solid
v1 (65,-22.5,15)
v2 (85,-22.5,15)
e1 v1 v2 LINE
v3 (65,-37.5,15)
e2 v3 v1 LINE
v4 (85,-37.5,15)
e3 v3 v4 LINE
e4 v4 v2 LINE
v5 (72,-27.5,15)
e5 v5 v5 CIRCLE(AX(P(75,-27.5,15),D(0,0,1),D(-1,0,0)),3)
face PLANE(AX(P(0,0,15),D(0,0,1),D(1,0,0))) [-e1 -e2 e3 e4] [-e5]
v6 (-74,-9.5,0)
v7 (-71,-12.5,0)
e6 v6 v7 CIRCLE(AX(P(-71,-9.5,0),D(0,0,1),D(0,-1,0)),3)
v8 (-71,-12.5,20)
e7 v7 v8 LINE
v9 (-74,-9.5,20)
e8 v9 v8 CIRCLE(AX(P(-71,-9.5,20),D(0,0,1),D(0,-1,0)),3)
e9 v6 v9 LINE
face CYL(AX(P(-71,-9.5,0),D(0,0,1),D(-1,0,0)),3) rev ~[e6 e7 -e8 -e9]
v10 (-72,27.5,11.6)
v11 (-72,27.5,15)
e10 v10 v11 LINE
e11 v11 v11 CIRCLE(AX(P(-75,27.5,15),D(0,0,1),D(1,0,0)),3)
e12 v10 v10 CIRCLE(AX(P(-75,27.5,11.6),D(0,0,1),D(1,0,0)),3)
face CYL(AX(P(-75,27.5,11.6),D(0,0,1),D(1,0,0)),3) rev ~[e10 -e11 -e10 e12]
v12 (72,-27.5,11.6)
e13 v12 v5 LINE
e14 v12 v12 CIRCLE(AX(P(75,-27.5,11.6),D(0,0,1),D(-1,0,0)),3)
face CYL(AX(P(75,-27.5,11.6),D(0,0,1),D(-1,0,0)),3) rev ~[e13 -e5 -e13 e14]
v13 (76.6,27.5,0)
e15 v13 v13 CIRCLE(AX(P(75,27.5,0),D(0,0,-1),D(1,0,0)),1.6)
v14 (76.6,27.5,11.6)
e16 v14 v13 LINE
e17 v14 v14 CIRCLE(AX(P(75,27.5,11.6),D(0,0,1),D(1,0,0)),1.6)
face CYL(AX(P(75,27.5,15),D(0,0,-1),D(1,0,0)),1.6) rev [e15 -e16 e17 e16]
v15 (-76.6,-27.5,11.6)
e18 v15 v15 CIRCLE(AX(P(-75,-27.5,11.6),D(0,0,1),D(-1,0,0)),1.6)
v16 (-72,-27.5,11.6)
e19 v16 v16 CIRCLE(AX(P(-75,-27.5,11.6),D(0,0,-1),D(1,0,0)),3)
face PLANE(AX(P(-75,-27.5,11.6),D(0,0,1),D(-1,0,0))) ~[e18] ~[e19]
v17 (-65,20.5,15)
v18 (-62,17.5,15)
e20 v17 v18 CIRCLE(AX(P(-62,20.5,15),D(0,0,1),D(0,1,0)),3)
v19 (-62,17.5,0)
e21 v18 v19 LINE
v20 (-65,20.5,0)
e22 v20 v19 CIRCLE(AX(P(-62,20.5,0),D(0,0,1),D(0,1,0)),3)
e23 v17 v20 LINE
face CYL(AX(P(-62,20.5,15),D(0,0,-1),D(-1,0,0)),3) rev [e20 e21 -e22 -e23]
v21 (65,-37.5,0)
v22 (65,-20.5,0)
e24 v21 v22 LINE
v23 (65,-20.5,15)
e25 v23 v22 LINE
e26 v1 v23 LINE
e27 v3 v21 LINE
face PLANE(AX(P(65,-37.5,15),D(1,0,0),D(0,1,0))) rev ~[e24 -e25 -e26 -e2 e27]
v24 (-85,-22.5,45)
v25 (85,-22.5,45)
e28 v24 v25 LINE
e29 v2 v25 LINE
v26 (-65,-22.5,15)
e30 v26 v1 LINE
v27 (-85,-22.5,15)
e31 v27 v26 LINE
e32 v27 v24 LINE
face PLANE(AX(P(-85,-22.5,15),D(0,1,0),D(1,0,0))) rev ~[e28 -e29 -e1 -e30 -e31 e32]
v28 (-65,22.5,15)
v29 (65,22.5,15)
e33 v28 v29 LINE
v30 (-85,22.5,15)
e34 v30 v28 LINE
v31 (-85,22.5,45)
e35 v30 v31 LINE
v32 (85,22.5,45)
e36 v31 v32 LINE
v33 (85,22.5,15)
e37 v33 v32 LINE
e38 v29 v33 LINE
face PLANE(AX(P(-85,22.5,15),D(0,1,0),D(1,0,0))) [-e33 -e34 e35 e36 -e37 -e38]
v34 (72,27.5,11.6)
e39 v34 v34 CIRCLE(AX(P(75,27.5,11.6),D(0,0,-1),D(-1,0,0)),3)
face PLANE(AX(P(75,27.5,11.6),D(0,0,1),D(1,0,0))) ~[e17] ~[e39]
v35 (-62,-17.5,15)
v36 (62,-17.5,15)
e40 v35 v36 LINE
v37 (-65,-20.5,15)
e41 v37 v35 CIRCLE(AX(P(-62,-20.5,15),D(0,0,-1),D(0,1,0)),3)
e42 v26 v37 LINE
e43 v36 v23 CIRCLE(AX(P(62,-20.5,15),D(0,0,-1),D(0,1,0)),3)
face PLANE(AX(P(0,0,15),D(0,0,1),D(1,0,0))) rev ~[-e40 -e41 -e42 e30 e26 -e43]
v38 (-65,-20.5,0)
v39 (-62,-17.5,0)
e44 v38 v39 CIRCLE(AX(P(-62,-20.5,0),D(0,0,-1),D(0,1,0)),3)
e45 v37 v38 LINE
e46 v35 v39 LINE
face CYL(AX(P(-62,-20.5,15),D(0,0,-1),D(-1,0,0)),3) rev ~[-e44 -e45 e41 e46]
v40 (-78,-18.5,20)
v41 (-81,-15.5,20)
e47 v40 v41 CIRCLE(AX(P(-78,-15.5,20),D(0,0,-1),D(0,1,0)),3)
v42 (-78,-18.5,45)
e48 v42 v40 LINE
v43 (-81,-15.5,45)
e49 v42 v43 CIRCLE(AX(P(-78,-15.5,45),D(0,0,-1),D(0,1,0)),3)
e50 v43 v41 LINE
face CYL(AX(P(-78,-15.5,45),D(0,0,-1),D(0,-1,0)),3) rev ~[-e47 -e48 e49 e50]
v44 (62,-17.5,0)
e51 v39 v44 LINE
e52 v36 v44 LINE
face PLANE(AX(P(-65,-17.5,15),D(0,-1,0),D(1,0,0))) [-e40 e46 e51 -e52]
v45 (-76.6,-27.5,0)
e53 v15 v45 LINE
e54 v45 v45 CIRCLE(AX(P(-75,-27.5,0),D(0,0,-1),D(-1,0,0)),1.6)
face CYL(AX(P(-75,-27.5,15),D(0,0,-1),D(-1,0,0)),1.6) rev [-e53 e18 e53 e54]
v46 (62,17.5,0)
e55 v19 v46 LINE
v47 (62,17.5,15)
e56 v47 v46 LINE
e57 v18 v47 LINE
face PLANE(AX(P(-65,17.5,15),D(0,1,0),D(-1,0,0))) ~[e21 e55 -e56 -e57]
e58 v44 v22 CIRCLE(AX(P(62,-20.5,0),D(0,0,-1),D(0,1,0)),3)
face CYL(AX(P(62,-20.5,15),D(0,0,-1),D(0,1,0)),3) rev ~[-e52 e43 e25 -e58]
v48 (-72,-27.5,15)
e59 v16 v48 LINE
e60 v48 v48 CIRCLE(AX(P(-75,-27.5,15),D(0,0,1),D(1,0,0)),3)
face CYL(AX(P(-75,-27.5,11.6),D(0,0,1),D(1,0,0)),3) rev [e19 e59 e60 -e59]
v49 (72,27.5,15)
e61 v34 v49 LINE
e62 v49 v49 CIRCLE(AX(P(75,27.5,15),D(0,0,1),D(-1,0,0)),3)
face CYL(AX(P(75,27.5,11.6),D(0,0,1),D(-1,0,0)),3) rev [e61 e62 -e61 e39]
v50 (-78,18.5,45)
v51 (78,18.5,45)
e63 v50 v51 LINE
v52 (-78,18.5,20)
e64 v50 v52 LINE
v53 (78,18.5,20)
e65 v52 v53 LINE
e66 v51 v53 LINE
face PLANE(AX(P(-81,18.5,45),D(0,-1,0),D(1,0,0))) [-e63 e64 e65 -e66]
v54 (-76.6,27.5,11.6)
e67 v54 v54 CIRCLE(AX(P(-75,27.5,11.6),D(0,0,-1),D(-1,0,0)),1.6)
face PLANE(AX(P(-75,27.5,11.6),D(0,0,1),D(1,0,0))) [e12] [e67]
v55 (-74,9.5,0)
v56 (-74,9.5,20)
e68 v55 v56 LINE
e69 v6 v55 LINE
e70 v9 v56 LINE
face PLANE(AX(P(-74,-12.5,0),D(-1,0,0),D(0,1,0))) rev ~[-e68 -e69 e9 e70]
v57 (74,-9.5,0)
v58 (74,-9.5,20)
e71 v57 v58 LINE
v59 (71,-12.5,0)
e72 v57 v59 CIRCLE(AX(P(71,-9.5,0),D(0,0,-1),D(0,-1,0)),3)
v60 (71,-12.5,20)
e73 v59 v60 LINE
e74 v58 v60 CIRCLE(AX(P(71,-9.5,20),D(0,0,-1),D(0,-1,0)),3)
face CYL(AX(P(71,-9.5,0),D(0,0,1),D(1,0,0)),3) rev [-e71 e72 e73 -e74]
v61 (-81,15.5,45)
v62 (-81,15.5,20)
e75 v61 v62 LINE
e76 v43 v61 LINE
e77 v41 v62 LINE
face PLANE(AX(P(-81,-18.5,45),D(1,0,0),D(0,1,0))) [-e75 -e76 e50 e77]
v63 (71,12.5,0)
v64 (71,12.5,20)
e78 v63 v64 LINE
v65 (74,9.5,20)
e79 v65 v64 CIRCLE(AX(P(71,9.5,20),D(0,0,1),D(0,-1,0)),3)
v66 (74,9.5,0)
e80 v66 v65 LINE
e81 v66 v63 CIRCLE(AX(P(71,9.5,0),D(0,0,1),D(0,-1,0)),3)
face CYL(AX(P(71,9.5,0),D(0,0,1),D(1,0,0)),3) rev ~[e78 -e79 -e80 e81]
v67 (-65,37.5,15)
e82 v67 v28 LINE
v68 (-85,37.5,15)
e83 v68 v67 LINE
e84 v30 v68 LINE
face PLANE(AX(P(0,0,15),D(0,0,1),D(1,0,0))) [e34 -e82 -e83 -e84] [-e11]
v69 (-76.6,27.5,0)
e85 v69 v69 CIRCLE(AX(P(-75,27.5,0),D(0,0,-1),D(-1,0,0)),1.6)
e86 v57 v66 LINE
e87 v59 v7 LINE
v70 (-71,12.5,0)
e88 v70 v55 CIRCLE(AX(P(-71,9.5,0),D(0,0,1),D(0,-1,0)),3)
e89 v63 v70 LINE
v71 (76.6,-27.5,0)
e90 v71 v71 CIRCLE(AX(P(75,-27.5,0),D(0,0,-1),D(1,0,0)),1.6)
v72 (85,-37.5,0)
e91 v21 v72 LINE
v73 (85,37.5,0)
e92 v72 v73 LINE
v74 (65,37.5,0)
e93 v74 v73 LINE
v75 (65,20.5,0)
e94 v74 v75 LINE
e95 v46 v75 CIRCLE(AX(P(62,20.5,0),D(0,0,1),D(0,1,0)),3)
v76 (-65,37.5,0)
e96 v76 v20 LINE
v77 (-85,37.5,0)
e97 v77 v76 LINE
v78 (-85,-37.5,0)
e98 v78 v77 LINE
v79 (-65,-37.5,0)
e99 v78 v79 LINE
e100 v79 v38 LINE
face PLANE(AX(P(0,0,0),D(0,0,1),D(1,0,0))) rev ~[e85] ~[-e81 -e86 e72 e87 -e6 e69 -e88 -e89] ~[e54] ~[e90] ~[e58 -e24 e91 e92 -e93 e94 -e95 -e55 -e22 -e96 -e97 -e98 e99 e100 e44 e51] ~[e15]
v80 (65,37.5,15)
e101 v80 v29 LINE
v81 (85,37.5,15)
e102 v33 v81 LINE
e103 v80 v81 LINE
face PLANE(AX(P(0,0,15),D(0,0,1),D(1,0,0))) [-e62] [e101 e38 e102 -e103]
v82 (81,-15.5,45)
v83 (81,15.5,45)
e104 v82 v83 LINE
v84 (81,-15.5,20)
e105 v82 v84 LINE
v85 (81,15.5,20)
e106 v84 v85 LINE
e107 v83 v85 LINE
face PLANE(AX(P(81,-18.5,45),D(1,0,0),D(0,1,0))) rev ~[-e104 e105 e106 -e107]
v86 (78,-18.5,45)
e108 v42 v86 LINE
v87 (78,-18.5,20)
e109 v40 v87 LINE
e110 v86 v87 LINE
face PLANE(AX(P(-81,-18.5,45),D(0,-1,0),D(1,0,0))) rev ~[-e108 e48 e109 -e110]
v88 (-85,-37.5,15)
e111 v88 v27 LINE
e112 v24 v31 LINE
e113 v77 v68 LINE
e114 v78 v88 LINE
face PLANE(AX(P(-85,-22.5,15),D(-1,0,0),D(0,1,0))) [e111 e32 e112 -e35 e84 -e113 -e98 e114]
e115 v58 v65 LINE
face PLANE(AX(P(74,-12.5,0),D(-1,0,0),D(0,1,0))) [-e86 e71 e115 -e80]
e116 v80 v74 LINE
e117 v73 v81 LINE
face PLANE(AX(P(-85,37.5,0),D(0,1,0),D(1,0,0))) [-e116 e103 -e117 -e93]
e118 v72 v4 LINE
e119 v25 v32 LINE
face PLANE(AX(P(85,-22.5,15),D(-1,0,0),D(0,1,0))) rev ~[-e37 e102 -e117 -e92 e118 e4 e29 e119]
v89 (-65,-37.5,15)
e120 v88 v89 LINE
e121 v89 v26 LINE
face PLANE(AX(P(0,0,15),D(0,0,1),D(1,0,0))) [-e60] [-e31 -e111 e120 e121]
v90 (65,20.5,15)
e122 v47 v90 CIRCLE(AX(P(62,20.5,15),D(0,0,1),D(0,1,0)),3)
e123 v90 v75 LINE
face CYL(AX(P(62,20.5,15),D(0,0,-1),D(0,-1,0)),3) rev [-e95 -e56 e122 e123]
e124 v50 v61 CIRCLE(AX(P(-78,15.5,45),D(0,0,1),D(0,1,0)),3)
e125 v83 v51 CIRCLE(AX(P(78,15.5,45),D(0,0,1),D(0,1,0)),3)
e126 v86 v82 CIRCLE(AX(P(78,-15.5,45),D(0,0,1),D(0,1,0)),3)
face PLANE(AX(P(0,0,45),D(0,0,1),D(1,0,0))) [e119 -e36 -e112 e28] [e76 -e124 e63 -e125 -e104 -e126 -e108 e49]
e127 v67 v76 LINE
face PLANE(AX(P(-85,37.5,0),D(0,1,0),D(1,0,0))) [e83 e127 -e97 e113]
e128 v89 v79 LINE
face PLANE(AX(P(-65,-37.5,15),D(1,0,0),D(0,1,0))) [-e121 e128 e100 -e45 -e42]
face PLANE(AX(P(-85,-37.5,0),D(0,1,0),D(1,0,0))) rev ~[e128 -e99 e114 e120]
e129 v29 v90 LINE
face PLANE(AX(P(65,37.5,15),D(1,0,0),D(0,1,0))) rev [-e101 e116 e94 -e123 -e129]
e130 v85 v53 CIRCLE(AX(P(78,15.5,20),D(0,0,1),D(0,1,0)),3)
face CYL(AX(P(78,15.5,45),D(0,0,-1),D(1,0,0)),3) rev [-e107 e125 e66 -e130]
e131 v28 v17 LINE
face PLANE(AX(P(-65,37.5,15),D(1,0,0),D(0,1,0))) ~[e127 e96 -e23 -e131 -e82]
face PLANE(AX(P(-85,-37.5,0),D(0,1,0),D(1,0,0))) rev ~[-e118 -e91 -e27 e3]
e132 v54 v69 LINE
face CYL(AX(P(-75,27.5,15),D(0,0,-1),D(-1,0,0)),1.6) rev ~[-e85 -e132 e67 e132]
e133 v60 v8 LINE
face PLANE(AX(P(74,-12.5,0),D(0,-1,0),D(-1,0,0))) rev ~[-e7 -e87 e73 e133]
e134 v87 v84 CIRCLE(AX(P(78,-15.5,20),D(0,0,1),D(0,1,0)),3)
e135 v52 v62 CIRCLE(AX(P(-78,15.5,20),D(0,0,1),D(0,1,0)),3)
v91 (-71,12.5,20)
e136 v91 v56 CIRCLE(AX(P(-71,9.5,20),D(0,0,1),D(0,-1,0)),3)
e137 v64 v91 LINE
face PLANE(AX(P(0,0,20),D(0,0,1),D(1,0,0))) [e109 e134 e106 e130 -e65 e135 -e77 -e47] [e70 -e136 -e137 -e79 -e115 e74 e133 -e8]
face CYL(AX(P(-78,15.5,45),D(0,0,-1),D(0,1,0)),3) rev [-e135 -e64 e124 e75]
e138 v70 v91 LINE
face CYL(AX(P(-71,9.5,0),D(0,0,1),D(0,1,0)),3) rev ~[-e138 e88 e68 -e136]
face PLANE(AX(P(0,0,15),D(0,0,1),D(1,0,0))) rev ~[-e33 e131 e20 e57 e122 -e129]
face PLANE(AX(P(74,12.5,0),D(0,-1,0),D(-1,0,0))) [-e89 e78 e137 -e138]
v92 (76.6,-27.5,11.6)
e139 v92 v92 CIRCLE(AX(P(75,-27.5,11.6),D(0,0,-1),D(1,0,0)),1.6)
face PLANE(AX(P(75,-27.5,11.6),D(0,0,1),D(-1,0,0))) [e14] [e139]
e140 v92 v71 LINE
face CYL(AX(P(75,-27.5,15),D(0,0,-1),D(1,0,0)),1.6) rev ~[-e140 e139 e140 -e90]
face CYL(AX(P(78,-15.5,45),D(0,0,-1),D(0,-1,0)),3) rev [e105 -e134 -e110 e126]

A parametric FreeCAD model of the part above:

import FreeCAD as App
import Part
import Sketcher
from FreeCAD import Vector
Q = App.Units.Quantity


def edges_at(feature, points):
    """Names of the edges that pass closest to the given points."""
    edges = feature.Shape.Edges
    near = lambda p: min(range(len(edges)), key=lambda i: edges[i].distToShape(Part.Vertex(*p))[0])
    return sorted({f"Edge{near(p) + 1}" for p in points})


def add_polygon(sketch, points):
    """Adds a closed chain of lines whose ends are joined by coincident constraints."""
    first, n = sketch.GeometryCount, len(points)
    for a, b in zip(points, points[1:] + points[:1]):
        sketch.addGeometry(Part.LineSegment(App.Vector(*a, 0), App.Vector(*b, 0)), False)
    for i in range(n):
        sketch.addConstraint(Sketcher.Constraint("Coincident", first + i, 2, first + (i + 1) % n, 1))

doc = App.newDocument("Part")
params = doc.addObject("Spreadsheet::Sheet", "Params")
for row, (alias, value) in enumerate([
    ("sketch1_width", "170 mm"),
    ("sketch1_height", "75 mm"),
    ("pad1_length", "15 mm"),
    ("sketch2_width", "130 mm"),
    ("sketch2_height", "20 mm"),
    ("sketch3_diameter", "3.2 mm"),
    ("hole_diameter", "3.2 mm"),
    ("hole_cbore_diameter", "6 mm"),
    ("hole_cbore_depth", "3.4 mm"),
    ("sketch4_diameter", "3.2 mm"),
    ("hole2_diameter", "3.2 mm"),
    ("hole2_cbore_diameter", "6 mm"),
    ("hole2_cbore_depth", "3.4 mm"),
    ("fillet_radius", "3 mm"),
    ("sketch5_width", "170 mm"),
    ("sketch5_height", "45 mm"),
    ("pad2_length", "30 mm"),
    ("sketch6_width", "148 mm"),
    ("sketch6_height", "25 mm"),
    ("sketch7_width", "162 mm"),
    ("sketch7_height", "37 mm"),
    ("pocket3_length", "25 mm"),
    ("fillet2_radius", "3 mm"),
], start=1):
    params.set(f"A{row}", alias)
    params.set(f"B{row}", "=" + value)
    params.setAlias(f"B{row}", alias)

body = doc.addObject("PartDesign::Body", "Body")

# Sketch on XY plane
sketch1 = body.newObject("Sketcher::SketchObject", "Sketch")
sketch1.AttachmentSupport = (doc.getObject("XY_Plane"), [""])
sketch1.MapMode = "FlatFace"
add_polygon(sketch1, [(-85, 37.5), (-85, -37.5), (85, -37.5), (85, 37.5)])  # lines 0-3
sketch1.addConstraint([
    Sketcher.Constraint("Vertical", 0),
    Sketcher.Constraint("Horizontal", 1),
    Sketcher.Constraint("Vertical", 2),
    Sketcher.Constraint("Horizontal", 3),
    Sketcher.Constraint("Symmetric", 0, 2, 2, 2, -1, 1),
    Sketcher.Constraint("DistanceX", 1, 1, 1, 2, Q("170 mm")),
    Sketcher.Constraint("DistanceY", 0, 2, 0, 1, Q("75 mm")),
])
sketch1.setExpression("Constraints[9]", "Params.sketch1_width")
sketch1.setExpression("Constraints[10]", "Params.sketch1_height")
pad1 = body.newObject("PartDesign::Pad", "Pad")
pad1.Profile = sketch1
pad1.setExpression("Length", "Params.pad1_length")

# Sketch on XY plane
sketch2 = body.newObject("Sketcher::SketchObject", "Sketch001")
sketch2.AttachmentSupport = (doc.getObject("XY_Plane"), [""])
sketch2.MapMode = "FlatFace"
sketch2.AttachmentOffset = App.Placement(Vector(0, 0, 15), App.Rotation())
add_polygon(sketch2, [(-65, -17.5), (-65, -37.5), (65, -37.5), (65, -17.5)])  # lines 0-3
sketch2.addConstraint([
    Sketcher.Constraint("Vertical", 0),
    Sketcher.Constraint("Horizontal", 1),
    Sketcher.Constraint("Vertical", 2),
    Sketcher.Constraint("Horizontal", 3),
    Sketcher.Constraint("DistanceX", 1, 1, 1, 2, Q("130 mm")),
    Sketcher.Constraint("DistanceY", 0, 2, 0, 1, Q("20 mm")),
    Sketcher.Constraint("DistanceX", 0, 2, -1, 1, Q("65 mm")),
    Sketcher.Constraint("DistanceY", 0, 2, -1, 1, Q("37.5 mm")),
])
sketch2.setExpression("Constraints[8]", "Params.sketch2_width")
sketch2.setExpression("Constraints[9]", "Params.sketch2_height")
pocket1 = body.newObject("PartDesign::Pocket", "Pocket")
pocket1.Profile = sketch2
pocket1.Type = "ThroughAll"
doc.recompute()

mirrored = body.newObject("PartDesign::Mirrored", "Mirrored")
mirrored.Originals = [pocket1]
mirrored.MirrorPlane = (doc.getObject("XZ_Plane"), [""])
body.Tip = mirrored

# Sketch on XY plane
sketch3 = body.newObject("Sketcher::SketchObject", "Sketch002")
sketch3.AttachmentSupport = (doc.getObject("XY_Plane"), [""])
sketch3.MapMode = "FlatFace"
sketch3.AttachmentOffset = App.Placement(Vector(0, 0, 15), App.Rotation())
sketch3.addGeometry(Part.Circle(Vector(-75, 27.5, 0), Vector(0, 0, 1), 1.6), False)
sketch3.addConstraint([
    Sketcher.Constraint("Diameter", 0, Q("3.2 mm")),
    Sketcher.Constraint("DistanceX", 0, 3, -1, 1, Q("75 mm")),
    Sketcher.Constraint("DistanceY", -1, 1, 0, 3, Q("27.5 mm")),
])
sketch3.setExpression("Constraints[0]", "Params.sketch3_diameter")
doc.recompute()
hole = body.newObject("PartDesign::Hole", "Hole")
hole.Profile = sketch3
hole.ThreadType = "None"
hole.setExpression("Diameter", "Params.hole_diameter")
hole.DepthType = "ThroughAll"
hole.HoleCutType = "Counterbore"
hole.setExpression("HoleCutDiameter", "Params.hole_cbore_diameter")
hole.setExpression("HoleCutDepth", "Params.hole_cbore_depth")
doc.recompute()

mirrored2 = body.newObject("PartDesign::Mirrored", "Mirrored001")
mirrored2.Originals = [hole]
mirrored2.MirrorPlane = (doc.getObject("YZ_Plane"), [""])
body.Tip = mirrored2
doc.recompute()

mirrored3 = body.newObject("PartDesign::Mirrored", "Mirrored002")
mirrored3.Originals = [hole]
mirrored3.MirrorPlane = (doc.getObject("XZ_Plane"), [""])
body.Tip = mirrored3

# Sketch on XY plane
sketch4 = body.newObject("Sketcher::SketchObject", "Sketch003")
sketch4.AttachmentSupport = (doc.getObject("XY_Plane"), [""])
sketch4.MapMode = "FlatFace"
sketch4.AttachmentOffset = App.Placement(Vector(0, 0, 15), App.Rotation())
sketch4.addGeometry(Part.Circle(Vector(75, -27.5, 0), Vector(0, 0, 1), 1.6), False)
sketch4.addConstraint([
    Sketcher.Constraint("Diameter", 0, Q("3.2 mm")),
    Sketcher.Constraint("DistanceX", -1, 1, 0, 3, Q("75 mm")),
    Sketcher.Constraint("DistanceY", 0, 3, -1, 1, Q("27.5 mm")),
])
sketch4.setExpression("Constraints[0]", "Params.sketch4_diameter")
doc.recompute()
hole2 = body.newObject("PartDesign::Hole", "Hole001")
hole2.Profile = sketch4
hole2.ThreadType = "None"
hole2.setExpression("Diameter", "Params.hole2_diameter")
hole2.DepthType = "ThroughAll"
hole2.HoleCutType = "Counterbore"
hole2.setExpression("HoleCutDiameter", "Params.hole2_cbore_diameter")
hole2.setExpression("HoleCutDepth", "Params.hole2_cbore_depth")
doc.recompute()

fillet = body.newObject("PartDesign::Fillet", "Fillet")
fillet.Base = (hole2, edges_at(hole2, [
    (-65, -17.5, 7.5),
    (65, -17.5, 7.5),
    (-65, 17.5, 7.5),
    (65, 17.5, 7.5),
]))
fillet.setExpression("Radius", "Params.fillet_radius")

# Sketch on XY plane
sketch5 = body.newObject("Sketcher::SketchObject", "Sketch004")
sketch5.AttachmentSupport = (doc.getObject("XY_Plane"), [""])
sketch5.MapMode = "FlatFace"
sketch5.AttachmentOffset = App.Placement(Vector(0, 0, 15), App.Rotation())
add_polygon(sketch5, [(-85, 22.5), (-85, -22.5), (85, -22.5), (85, 22.5)])  # lines 0-3
sketch5.addConstraint([
    Sketcher.Constraint("Vertical", 0),
    Sketcher.Constraint("Horizontal", 1),
    Sketcher.Constraint("Vertical", 2),
    Sketcher.Constraint("Horizontal", 3),
    Sketcher.Constraint("Symmetric", 0, 2, 2, 2, -1, 1),
    Sketcher.Constraint("DistanceX", 1, 1, 1, 2, Q("170 mm")),
    Sketcher.Constraint("DistanceY", 0, 2, 0, 1, Q("45 mm")),
])
sketch5.setExpression("Constraints[9]", "Params.sketch5_width")
sketch5.setExpression("Constraints[10]", "Params.sketch5_height")
pad2 = body.newObject("PartDesign::Pad", "Pad001")
pad2.Profile = sketch5
pad2.setExpression("Length", "Params.pad2_length")

# Sketch on XY plane
sketch6 = body.newObject("Sketcher::SketchObject", "Sketch005")
sketch6.AttachmentSupport = (doc.getObject("XY_Plane"), [""])
sketch6.MapMode = "FlatFace"
add_polygon(sketch6, [(74, 12.5), (74, -12.5), (-74, -12.5), (-74, 12.5)])  # lines 0-3
sketch6.addConstraint([
    Sketcher.Constraint("Vertical", 0),
    Sketcher.Constraint("Horizontal", 1),
    Sketcher.Constraint("Vertical", 2),
    Sketcher.Constraint("Horizontal", 3),
    Sketcher.Constraint("Symmetric", 0, 2, 2, 2, -1, 1),
    Sketcher.Constraint("DistanceX", 1, 2, 1, 1, Q("148 mm")),
    Sketcher.Constraint("DistanceY", 0, 2, 0, 1, Q("25 mm")),
])
sketch6.setExpression("Constraints[9]", "Params.sketch6_width")
sketch6.setExpression("Constraints[10]", "Params.sketch6_height")
pocket2 = body.newObject("PartDesign::Pocket", "Pocket001")
pocket2.Profile = sketch6
pocket2.Type = "ThroughAll"
pocket2.Reversed = True

# Sketch on XY plane
sketch7 = body.newObject("Sketcher::SketchObject", "Sketch006")
sketch7.AttachmentSupport = (doc.getObject("XY_Plane"), [""])
sketch7.MapMode = "FlatFace"
sketch7.AttachmentOffset = App.Placement(Vector(0, 0, 45), App.Rotation())
add_polygon(sketch7, [(-81, 18.5), (-81, -18.5), (81, -18.5), (81, 18.5)])  # lines 0-3
sketch7.addConstraint([
    Sketcher.Constraint("Vertical", 0),
    Sketcher.Constraint("Horizontal", 1),
    Sketcher.Constraint("Vertical", 2),
    Sketcher.Constraint("Horizontal", 3),
    Sketcher.Constraint("Symmetric", 0, 2, 2, 2, -1, 1),
    Sketcher.Constraint("DistanceX", 1, 1, 1, 2, Q("162 mm")),
    Sketcher.Constraint("DistanceY", 0, 2, 0, 1, Q("37 mm")),
])
sketch7.setExpression("Constraints[9]", "Params.sketch7_width")
sketch7.setExpression("Constraints[10]", "Params.sketch7_height")
pocket3 = body.newObject("PartDesign::Pocket", "Pocket002")
pocket3.Profile = sketch7
pocket3.setExpression("Length", "Params.pocket3_length")
doc.recompute()

fillet2 = body.newObject("PartDesign::Fillet", "Fillet001")
fillet2.Base = (pocket3, edges_at(pocket3, [
    (-74, -12.5, 10),
    (74, -12.5, 10),
    (-74, 12.5, 10),
    (74, 12.5, 10),
    (-81, -18.5, 32.5),
    (-81, 18.5, 32.5),
    (81, 18.5, 32.5),
    (81, -18.5, 32.5),
]))
fillet2.setExpression("Radius", "Params.fillet2_radius")

doc.recompute()
